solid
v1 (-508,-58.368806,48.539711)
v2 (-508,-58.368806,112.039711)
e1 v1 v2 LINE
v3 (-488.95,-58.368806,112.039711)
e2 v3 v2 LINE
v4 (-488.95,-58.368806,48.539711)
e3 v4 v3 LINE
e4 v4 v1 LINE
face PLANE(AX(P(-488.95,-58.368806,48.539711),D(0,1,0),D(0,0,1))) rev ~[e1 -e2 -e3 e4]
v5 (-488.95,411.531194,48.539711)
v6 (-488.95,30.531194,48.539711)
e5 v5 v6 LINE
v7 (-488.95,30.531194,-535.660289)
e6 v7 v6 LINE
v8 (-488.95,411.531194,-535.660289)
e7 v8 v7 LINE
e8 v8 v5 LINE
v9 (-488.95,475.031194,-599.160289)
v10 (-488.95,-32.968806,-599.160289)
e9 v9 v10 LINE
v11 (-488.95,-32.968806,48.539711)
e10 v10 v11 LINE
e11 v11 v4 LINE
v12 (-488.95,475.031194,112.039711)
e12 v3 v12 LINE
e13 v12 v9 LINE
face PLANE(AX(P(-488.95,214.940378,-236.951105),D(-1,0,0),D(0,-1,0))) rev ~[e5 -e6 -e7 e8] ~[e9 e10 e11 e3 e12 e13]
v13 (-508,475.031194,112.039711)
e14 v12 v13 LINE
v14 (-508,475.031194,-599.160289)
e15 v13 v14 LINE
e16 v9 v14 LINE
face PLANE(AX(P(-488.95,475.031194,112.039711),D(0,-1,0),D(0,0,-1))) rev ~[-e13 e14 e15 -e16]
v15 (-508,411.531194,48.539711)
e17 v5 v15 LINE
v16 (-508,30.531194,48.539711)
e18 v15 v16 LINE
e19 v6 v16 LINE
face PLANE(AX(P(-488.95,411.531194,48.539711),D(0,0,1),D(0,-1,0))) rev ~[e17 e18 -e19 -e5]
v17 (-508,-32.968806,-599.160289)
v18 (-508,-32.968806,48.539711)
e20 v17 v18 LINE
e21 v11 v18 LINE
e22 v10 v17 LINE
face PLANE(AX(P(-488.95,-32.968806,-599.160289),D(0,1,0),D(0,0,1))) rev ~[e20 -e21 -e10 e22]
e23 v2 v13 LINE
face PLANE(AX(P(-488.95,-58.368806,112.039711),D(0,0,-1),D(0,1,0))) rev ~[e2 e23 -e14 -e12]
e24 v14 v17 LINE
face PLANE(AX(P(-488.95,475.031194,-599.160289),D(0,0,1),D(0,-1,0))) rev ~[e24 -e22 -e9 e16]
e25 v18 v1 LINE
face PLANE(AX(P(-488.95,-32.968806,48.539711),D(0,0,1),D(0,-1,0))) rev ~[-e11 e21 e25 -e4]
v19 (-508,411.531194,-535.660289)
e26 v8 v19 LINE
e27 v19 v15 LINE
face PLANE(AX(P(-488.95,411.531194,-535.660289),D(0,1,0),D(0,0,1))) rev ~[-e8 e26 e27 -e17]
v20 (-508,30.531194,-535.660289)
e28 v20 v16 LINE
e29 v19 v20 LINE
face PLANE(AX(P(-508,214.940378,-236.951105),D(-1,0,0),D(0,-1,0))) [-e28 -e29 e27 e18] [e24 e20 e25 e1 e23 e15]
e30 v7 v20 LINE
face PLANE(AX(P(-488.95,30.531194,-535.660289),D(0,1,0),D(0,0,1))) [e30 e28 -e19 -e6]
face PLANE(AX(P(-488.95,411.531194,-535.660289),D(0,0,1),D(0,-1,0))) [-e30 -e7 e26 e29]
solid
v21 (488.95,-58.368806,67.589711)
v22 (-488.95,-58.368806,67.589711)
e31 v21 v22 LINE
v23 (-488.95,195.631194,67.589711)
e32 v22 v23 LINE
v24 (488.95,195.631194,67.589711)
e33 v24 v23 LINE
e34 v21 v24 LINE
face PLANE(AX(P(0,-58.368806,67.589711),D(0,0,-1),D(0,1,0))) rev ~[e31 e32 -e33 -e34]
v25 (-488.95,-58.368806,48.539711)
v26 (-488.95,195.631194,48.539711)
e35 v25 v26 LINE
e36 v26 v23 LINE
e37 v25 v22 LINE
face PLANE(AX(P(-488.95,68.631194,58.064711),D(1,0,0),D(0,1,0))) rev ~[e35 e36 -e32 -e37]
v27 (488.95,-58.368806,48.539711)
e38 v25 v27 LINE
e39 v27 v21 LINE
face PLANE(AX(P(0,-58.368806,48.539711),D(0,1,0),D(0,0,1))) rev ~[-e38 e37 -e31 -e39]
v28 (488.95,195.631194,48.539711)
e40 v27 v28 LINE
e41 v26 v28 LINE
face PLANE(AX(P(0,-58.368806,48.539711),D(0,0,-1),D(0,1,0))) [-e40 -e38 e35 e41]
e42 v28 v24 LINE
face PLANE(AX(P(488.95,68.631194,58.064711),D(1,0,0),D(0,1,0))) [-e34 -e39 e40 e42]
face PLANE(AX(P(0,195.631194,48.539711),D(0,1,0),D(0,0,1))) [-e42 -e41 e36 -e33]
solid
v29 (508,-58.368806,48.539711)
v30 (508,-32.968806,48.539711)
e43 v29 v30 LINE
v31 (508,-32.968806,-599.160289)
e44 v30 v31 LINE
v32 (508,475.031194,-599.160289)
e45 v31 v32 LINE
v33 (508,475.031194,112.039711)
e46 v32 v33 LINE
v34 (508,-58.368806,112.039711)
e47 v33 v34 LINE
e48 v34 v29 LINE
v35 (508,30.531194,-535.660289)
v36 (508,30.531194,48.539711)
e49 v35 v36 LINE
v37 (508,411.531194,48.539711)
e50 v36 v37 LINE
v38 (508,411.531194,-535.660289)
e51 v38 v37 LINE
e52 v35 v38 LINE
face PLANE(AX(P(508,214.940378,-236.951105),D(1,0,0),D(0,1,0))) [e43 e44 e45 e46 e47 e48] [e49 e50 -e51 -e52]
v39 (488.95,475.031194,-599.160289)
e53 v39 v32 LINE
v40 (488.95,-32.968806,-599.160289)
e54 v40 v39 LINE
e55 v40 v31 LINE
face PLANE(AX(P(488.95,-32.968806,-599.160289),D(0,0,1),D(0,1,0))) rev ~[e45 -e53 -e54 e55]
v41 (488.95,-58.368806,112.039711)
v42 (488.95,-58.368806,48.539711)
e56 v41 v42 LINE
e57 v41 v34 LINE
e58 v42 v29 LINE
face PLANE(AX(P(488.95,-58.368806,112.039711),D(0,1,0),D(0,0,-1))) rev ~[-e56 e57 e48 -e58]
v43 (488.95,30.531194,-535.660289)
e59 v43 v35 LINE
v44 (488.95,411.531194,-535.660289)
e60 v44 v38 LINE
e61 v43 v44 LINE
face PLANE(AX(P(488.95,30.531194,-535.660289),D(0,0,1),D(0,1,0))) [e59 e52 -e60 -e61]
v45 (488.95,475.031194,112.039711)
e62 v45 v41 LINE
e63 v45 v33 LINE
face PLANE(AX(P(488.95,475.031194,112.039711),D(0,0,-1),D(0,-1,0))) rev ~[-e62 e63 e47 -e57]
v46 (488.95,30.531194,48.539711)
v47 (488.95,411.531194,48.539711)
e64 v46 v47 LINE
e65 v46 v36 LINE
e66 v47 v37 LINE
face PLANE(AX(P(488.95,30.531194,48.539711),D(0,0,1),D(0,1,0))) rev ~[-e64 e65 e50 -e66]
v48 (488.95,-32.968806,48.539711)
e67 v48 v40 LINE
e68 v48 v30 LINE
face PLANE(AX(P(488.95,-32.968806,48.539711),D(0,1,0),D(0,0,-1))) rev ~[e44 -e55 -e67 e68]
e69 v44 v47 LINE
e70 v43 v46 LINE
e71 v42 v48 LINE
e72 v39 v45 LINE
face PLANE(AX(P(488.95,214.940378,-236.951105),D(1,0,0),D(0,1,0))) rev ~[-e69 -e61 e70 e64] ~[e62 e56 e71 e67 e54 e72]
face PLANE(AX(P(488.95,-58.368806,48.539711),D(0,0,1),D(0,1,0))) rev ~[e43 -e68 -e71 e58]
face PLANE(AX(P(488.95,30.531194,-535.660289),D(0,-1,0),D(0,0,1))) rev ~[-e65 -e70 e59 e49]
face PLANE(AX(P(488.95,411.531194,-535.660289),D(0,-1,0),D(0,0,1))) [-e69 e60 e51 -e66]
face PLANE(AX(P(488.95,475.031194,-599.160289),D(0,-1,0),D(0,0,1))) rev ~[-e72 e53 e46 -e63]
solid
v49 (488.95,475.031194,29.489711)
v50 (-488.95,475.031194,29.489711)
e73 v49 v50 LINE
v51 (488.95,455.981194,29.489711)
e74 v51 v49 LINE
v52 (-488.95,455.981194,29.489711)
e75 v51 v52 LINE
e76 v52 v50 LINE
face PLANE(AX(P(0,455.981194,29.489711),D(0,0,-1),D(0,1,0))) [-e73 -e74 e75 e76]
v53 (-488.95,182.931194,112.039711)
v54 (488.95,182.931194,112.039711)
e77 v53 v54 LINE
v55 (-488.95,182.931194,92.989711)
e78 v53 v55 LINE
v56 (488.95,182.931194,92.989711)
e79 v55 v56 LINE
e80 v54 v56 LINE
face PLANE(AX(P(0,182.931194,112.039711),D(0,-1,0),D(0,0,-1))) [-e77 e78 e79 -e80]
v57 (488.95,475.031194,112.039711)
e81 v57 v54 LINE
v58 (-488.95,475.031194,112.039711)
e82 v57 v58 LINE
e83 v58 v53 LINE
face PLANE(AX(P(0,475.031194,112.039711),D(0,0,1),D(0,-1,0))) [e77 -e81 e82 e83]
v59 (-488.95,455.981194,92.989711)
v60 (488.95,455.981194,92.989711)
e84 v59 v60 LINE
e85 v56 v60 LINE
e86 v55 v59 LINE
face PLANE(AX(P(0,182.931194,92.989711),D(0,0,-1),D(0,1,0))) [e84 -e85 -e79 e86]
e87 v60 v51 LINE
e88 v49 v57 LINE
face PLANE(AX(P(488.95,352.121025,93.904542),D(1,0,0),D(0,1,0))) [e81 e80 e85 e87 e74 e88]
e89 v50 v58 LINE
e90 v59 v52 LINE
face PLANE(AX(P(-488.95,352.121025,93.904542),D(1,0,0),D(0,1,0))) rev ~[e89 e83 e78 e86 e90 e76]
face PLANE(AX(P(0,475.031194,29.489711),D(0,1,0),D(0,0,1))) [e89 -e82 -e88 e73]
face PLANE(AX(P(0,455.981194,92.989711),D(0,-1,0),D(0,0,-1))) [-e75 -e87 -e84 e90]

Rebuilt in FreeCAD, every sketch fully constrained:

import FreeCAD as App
import Part
import Sketcher
from FreeCAD import Vector
Q = App.Units.Quantity


def add_polygon(sketch, points):
    """Adds a closed chain of lines whose ends are joined by coincident constraints."""
    first, n = sketch.GeometryCount, len(points)
    for a, b in zip(points, points[1:] + points[:1]):
        sketch.addGeometry(Part.LineSegment(App.Vector(*a, 0), App.Vector(*b, 0)), False)
    for i in range(n):
        sketch.addConstraint(Sketcher.Constraint("Coincident", first + i, 2, first + (i + 1) % n, 1))

doc = App.newDocument("Part")
body = doc.addObject("PartDesign::Body", "Body")
body.AllowCompound = True

# Sketch on YZ plane
sketch1 = doc.addObject("Sketcher::SketchObject", "Sketch")
body.addObject(sketch1)
sketch1.AttachmentSupport = (doc.YZ_Plane, [""])
sketch1.MapMode = "FlatFace"
add_polygon(sketch1, [(475.031194, 112.039711), (182.931194, 112.039711), (182.931194, 92.989711), (455.981194, 92.989711), (455.981194, 29.489711), (475.031194, 29.489711)])  # lines 0-5
add_polygon(sketch1, [(-58.368806, 67.589711), (-58.368806, 48.539711), (195.631194, 48.539711), (195.631194, 67.589711)])  # lines 6-9
sketch1.addConstraint(Sketcher.Constraint("Horizontal", 0))
sketch1.addConstraint(Sketcher.Constraint("Vertical", 1))
sketch1.addConstraint(Sketcher.Constraint("Horizontal", 2))
sketch1.addConstraint(Sketcher.Constraint("Vertical", 3))
sketch1.addConstraint(Sketcher.Constraint("Horizontal", 4))
sketch1.addConstraint(Sketcher.Constraint("Vertical", 5))
sketch1.addConstraint(Sketcher.Constraint("Vertical", 6))
sketch1.addConstraint(Sketcher.Constraint("Horizontal", 7))
sketch1.addConstraint(Sketcher.Constraint("Vertical", 8))
sketch1.addConstraint(Sketcher.Constraint("Horizontal", 9))
sketch1.addConstraint(Sketcher.Constraint("Equal", 4, 1))
sketch1.addConstraint(Sketcher.Constraint("Equal", 1, 6))
sketch1.addConstraint(Sketcher.Constraint("DistanceX", 7, 1, 7, 2, Q("10 in")))
sketch1.addConstraint(Sketcher.Constraint("DistanceX", 0, 2, 0, 1, Q("11.5 in")))
sketch1.addConstraint(Sketcher.Constraint("DistanceY", 3, 2, 3, 1, Q("2.5 in")))
sketch1.addConstraint(Sketcher.Constraint("DistanceX", 6, 2, 4, 2, Q("21 in")))
sketch1.addConstraint(Sketcher.Constraint("DistanceY", 8, 2, 1, 2, Q("1 in")))
sketch1.addConstraint(Sketcher.Constraint("DistanceX", 2, 1, 2, 2, Q("10.75 in")))
sketch1.addConstraint(Sketcher.Constraint("DistanceY", -1, 1, 0, 2, Q("112.039711 mm")))
sketch1.addConstraint(Sketcher.Constraint("DistanceX", -1, 1, 0, 2, Q("182.931194 mm")))
pad1 = doc.addObject("PartDesign::Pad", "Pad")
body.addObject(pad1)
pad1.Profile = sketch1
pad1.Type = "TwoLengths"
pad1.Length = Q("19.25 in")
pad1.Length2 = Q("19.25 in")
body2 = doc.addObject("PartDesign::Body", "Body001")

# Sketch on YZ plane
sketch2 = doc.addObject("Sketcher::SketchObject", "Sketch001")
body2.addObject(sketch2)
sketch2.AttachmentSupport = (doc.getObject("YZ_Plane001"), [""])
sketch2.MapMode = "FlatFace"
sketch2.AttachmentOffset = App.Placement(Vector(0, 0, 19.25 * 25.4), App.Rotation())
add_polygon(sketch2, [(475.031194, 112.039711), (-58.368806, 112.039711), (-58.368806, 48.539711), (-32.968806, 48.539711), (-32.968806, -599.160289), (475.031194, -599.160289)])  # lines 0-5
add_polygon(sketch2, [(411.531194, -535.660289), (30.531194, -535.660289), (30.531194, 48.539711), (411.531194, 48.539711)])  # lines 6-9
sketch2.addConstraint(Sketcher.Constraint("Horizontal", 0))
sketch2.addConstraint(Sketcher.Constraint("Vertical", 1))
sketch2.addConstraint(Sketcher.Constraint("Horizontal", 2))
sketch2.addConstraint(Sketcher.Constraint("Vertical", 3))
sketch2.addConstraint(Sketcher.Constraint("Horizontal", 4))
sketch2.addConstraint(Sketcher.Constraint("Vertical", 5))
sketch2.addConstraint(Sketcher.Constraint("Horizontal", 6))
sketch2.addConstraint(Sketcher.Constraint("Vertical", 7))
sketch2.addConstraint(Sketcher.Constraint("Horizontal", 8))
sketch2.addConstraint(Sketcher.Constraint("Vertical", 9))
sketch2.addConstraint(Sketcher.Constraint("Horizontal", 2, 2, 7, 2))
sketch2.addConstraint(Sketcher.Constraint("DistanceX", 0, 2, 0, 1, Q("21 in")))
sketch2.addConstraint(Sketcher.Constraint("DistanceX", 2, 1, 2, 2, Q("1 in")))
sketch2.addConstraint(Sketcher.Constraint("DistanceX", 6, 2, 6, 1, Q("15 in")))
sketch2.addConstraint(Sketcher.Constraint("DistanceY", 5, 1, 5, 2, Q("28 in")))
sketch2.addConstraint(Sketcher.Constraint("DistanceY", 7, 1, 7, 2, Q("23 in")))
sketch2.addConstraint(Sketcher.Constraint("DistanceY", 1, 2, 1, 1, Q("2.5 in")))
sketch2.addConstraint(Sketcher.Constraint("DistanceX", 3, 2, 6, 2, Q("2.5 in")))
sketch2.addConstraint(Sketcher.Constraint("DistanceY", -1, 1, 0, 2, Q("112.039711 mm")))
sketch2.addConstraint(Sketcher.Constraint("DistanceX", 0, 2, -1, 1, Q("58.368806 mm")))
pad2 = doc.addObject("PartDesign::Pad", "Pad001")
body2.addObject(pad2)
pad2.Profile = sketch2
pad2.Length = Q("0.75 in")
body3 = doc.addObject("PartDesign::Body", "Body002")

# Sketch on YZ plane
sketch3 = doc.addObject("Sketcher::SketchObject", "Sketch002")
body3.addObject(sketch3)
sketch3.AttachmentSupport = (doc.getObject("YZ_Plane002"), [""])
sketch3.MapMode = "FlatFace"
sketch3.AttachmentOffset = App.Placement(Vector(0, 0, -19.25 * 25.4), App.Rotation())
add_polygon(sketch3, [(-58.368806, 112.039711), (475.031194, 112.039711), (475.031194, -599.160289), (-32.968806, -599.160289), (-32.968806, 48.539711), (-58.368806, 48.539711)])  # lines 0-5
add_polygon(sketch3, [(30.531194, -535.660289), (411.531194, -535.660289), (411.531194, 48.539711), (30.531194, 48.539711)])  # lines 6-9
sketch3.addConstraint(Sketcher.Constraint("Horizontal", 0))
sketch3.addConstraint(Sketcher.Constraint("Vertical", 1))
sketch3.addConstraint(Sketcher.Constraint("Horizontal", 2))
sketch3.addConstraint(Sketcher.Constraint("Vertical", 3))
sketch3.addConstraint(Sketcher.Constraint("Horizontal", 4))
sketch3.addConstraint(Sketcher.Constraint("Vertical", 5))
sketch3.addConstraint(Sketcher.Constraint("Horizontal", 6))
sketch3.addConstraint(Sketcher.Constraint("Vertical", 7))
sketch3.addConstraint(Sketcher.Constraint("Horizontal", 8))
sketch3.addConstraint(Sketcher.Constraint("Vertical", 9))
sketch3.addConstraint(Sketcher.Constraint("Horizontal", 4, 2, 7, 2))
sketch3.addConstraint(Sketcher.Constraint("DistanceX", 0, 1, 0, 2, Q("21 in")))
sketch3.addConstraint(Sketcher.Constraint("DistanceX", 2, 2, 2, 1, Q("20 in")))
sketch3.addConstraint(Sketcher.Constraint("DistanceX", 6, 1, 6, 2, Q("15 in")))
sketch3.addConstraint(Sketcher.Constraint("DistanceY", 1, 2, 1, 1, Q("28 in")))
sketch3.addConstraint(Sketcher.Constraint("DistanceY", 7, 1, 7, 2, Q("23 in")))
sketch3.addConstraint(Sketcher.Constraint("DistanceY", 3, 1, 3, 2, Q("25.5 in")))
sketch3.addConstraint(Sketcher.Constraint("DistanceX", 6, 2, 1, 2, Q("2.5 in")))
sketch3.addConstraint(Sketcher.Constraint("DistanceY", -1, 1, 0, 2, Q("112.039711 mm")))
sketch3.addConstraint(Sketcher.Constraint("DistanceX", -1, 1, 0, 2, Q("475.031194 mm")))
pad3 = doc.addObject("PartDesign::Pad", "Pad002")
body3.addObject(pad3)
pad3.Profile = sketch3
pad3.Length = Q("0.75 in")
pad3.Reversed = True

doc.recompute()
